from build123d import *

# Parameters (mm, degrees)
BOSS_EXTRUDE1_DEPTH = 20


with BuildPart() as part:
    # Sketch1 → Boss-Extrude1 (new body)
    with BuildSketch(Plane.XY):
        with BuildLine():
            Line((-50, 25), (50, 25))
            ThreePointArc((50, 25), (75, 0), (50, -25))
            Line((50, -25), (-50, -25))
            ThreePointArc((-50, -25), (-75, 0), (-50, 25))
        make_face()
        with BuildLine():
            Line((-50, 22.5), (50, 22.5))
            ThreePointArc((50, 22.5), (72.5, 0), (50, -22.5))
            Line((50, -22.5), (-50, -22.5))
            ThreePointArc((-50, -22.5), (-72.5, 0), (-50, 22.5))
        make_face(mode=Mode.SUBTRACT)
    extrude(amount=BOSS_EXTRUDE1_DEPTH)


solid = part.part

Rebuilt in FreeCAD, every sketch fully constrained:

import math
import FreeCAD as App
import Part
import Sketcher

doc = App.newDocument("Part")
body = doc.addObject("PartDesign::Body", "Body")

sketch1 = body.newObject("Sketcher::SketchObject", "Sketch")
sketch1.AttachmentSupport = (doc.getObject("XY_Plane"), [""])
sketch1.MapMode = "FlatFace"
sketch1.addGeometry(Part.LineSegment(App.Vector(50, 25, 0), App.Vector(-50, 25, 0)), False)
sketch1.addGeometry(Part.ArcOfCircle(Part.Circle(App.Vector(-50, 0, 0), App.Vector(0, 0, 1), 25), math.radians(90), math.radians(270)), False)
sketch1.addGeometry(Part.LineSegment(App.Vector(-50, -25, 0), App.Vector(50, -25, 0)), False)
sketch1.addGeometry(Part.ArcOfCircle(Part.Circle(App.Vector(50, 0, 0), App.Vector(0, 0, 1), 25), math.radians(-90), math.radians(90)), False)
sketch1.addGeometry(Part.LineSegment(App.Vector(-50, 22.5, 0), App.Vector(50, 22.5, 0)), False)
sketch1.addGeometry(Part.ArcOfCircle(Part.Circle(App.Vector(50, 0, 0), App.Vector(0, 0, 1), 22.5), math.radians(-90), math.radians(90)), False)
sketch1.addGeometry(Part.LineSegment(App.Vector(50, -22.5, 0), App.Vector(-50, -22.5, 0)), False)
sketch1.addGeometry(Part.ArcOfCircle(Part.Circle(App.Vector(-50, 0, 0), App.Vector(0, 0, 1), 22.5), math.radians(90), math.radians(270)), False)
sketch1.addConstraint(Sketcher.Constraint("Tangent", 0, 2, 1, 1))
sketch1.addConstraint(Sketcher.Constraint("Tangent", 1, 2, 2, 1))
sketch1.addConstraint(Sketcher.Constraint("Tangent", 2, 2, 3, 1))
sketch1.addConstraint(Sketcher.Constraint("Tangent", 3, 2, 0, 1))
sketch1.addConstraint(Sketcher.Constraint("Tangent", 4, 2, 5, 2))
sketch1.addConstraint(Sketcher.Constraint("Tangent", 5, 1, 6, 1))
sketch1.addConstraint(Sketcher.Constraint("Tangent", 6, 2, 7, 2))
sketch1.addConstraint(Sketcher.Constraint("Tangent", 7, 1, 4, 1))
sketch1.addConstraint(Sketcher.Constraint("Horizontal", 0))
sketch1.addConstraint(Sketcher.Constraint("Horizontal", 2))
sketch1.addConstraint(Sketcher.Constraint("Horizontal", 4))
sketch1.addConstraint(Sketcher.Constraint("Horizontal", 6))
sketch1.addConstraint(Sketcher.Constraint("Coincident", 5, 3, 3, 3))
sketch1.addConstraint(Sketcher.Constraint("Symmetric", 1, 3, 3, 3, -1, 1))
sketch1.addConstraint(Sketcher.Constraint("Vertical", 7, 3, 0, 2))
sketch1.addConstraint(Sketcher.Constraint("Radius", 1, 25.0))
sketch1.addConstraint(Sketcher.Constraint("Radius", 5, 22.5))
sketch1.addConstraint(Sketcher.Constraint("DistanceX", 0, 2, 0, 1, 100.0))
pad1 = body.newObject("PartDesign::Pad", "Pad")
pad1.Profile = sketch1
pad1.Length = 20

doc.recompute()
